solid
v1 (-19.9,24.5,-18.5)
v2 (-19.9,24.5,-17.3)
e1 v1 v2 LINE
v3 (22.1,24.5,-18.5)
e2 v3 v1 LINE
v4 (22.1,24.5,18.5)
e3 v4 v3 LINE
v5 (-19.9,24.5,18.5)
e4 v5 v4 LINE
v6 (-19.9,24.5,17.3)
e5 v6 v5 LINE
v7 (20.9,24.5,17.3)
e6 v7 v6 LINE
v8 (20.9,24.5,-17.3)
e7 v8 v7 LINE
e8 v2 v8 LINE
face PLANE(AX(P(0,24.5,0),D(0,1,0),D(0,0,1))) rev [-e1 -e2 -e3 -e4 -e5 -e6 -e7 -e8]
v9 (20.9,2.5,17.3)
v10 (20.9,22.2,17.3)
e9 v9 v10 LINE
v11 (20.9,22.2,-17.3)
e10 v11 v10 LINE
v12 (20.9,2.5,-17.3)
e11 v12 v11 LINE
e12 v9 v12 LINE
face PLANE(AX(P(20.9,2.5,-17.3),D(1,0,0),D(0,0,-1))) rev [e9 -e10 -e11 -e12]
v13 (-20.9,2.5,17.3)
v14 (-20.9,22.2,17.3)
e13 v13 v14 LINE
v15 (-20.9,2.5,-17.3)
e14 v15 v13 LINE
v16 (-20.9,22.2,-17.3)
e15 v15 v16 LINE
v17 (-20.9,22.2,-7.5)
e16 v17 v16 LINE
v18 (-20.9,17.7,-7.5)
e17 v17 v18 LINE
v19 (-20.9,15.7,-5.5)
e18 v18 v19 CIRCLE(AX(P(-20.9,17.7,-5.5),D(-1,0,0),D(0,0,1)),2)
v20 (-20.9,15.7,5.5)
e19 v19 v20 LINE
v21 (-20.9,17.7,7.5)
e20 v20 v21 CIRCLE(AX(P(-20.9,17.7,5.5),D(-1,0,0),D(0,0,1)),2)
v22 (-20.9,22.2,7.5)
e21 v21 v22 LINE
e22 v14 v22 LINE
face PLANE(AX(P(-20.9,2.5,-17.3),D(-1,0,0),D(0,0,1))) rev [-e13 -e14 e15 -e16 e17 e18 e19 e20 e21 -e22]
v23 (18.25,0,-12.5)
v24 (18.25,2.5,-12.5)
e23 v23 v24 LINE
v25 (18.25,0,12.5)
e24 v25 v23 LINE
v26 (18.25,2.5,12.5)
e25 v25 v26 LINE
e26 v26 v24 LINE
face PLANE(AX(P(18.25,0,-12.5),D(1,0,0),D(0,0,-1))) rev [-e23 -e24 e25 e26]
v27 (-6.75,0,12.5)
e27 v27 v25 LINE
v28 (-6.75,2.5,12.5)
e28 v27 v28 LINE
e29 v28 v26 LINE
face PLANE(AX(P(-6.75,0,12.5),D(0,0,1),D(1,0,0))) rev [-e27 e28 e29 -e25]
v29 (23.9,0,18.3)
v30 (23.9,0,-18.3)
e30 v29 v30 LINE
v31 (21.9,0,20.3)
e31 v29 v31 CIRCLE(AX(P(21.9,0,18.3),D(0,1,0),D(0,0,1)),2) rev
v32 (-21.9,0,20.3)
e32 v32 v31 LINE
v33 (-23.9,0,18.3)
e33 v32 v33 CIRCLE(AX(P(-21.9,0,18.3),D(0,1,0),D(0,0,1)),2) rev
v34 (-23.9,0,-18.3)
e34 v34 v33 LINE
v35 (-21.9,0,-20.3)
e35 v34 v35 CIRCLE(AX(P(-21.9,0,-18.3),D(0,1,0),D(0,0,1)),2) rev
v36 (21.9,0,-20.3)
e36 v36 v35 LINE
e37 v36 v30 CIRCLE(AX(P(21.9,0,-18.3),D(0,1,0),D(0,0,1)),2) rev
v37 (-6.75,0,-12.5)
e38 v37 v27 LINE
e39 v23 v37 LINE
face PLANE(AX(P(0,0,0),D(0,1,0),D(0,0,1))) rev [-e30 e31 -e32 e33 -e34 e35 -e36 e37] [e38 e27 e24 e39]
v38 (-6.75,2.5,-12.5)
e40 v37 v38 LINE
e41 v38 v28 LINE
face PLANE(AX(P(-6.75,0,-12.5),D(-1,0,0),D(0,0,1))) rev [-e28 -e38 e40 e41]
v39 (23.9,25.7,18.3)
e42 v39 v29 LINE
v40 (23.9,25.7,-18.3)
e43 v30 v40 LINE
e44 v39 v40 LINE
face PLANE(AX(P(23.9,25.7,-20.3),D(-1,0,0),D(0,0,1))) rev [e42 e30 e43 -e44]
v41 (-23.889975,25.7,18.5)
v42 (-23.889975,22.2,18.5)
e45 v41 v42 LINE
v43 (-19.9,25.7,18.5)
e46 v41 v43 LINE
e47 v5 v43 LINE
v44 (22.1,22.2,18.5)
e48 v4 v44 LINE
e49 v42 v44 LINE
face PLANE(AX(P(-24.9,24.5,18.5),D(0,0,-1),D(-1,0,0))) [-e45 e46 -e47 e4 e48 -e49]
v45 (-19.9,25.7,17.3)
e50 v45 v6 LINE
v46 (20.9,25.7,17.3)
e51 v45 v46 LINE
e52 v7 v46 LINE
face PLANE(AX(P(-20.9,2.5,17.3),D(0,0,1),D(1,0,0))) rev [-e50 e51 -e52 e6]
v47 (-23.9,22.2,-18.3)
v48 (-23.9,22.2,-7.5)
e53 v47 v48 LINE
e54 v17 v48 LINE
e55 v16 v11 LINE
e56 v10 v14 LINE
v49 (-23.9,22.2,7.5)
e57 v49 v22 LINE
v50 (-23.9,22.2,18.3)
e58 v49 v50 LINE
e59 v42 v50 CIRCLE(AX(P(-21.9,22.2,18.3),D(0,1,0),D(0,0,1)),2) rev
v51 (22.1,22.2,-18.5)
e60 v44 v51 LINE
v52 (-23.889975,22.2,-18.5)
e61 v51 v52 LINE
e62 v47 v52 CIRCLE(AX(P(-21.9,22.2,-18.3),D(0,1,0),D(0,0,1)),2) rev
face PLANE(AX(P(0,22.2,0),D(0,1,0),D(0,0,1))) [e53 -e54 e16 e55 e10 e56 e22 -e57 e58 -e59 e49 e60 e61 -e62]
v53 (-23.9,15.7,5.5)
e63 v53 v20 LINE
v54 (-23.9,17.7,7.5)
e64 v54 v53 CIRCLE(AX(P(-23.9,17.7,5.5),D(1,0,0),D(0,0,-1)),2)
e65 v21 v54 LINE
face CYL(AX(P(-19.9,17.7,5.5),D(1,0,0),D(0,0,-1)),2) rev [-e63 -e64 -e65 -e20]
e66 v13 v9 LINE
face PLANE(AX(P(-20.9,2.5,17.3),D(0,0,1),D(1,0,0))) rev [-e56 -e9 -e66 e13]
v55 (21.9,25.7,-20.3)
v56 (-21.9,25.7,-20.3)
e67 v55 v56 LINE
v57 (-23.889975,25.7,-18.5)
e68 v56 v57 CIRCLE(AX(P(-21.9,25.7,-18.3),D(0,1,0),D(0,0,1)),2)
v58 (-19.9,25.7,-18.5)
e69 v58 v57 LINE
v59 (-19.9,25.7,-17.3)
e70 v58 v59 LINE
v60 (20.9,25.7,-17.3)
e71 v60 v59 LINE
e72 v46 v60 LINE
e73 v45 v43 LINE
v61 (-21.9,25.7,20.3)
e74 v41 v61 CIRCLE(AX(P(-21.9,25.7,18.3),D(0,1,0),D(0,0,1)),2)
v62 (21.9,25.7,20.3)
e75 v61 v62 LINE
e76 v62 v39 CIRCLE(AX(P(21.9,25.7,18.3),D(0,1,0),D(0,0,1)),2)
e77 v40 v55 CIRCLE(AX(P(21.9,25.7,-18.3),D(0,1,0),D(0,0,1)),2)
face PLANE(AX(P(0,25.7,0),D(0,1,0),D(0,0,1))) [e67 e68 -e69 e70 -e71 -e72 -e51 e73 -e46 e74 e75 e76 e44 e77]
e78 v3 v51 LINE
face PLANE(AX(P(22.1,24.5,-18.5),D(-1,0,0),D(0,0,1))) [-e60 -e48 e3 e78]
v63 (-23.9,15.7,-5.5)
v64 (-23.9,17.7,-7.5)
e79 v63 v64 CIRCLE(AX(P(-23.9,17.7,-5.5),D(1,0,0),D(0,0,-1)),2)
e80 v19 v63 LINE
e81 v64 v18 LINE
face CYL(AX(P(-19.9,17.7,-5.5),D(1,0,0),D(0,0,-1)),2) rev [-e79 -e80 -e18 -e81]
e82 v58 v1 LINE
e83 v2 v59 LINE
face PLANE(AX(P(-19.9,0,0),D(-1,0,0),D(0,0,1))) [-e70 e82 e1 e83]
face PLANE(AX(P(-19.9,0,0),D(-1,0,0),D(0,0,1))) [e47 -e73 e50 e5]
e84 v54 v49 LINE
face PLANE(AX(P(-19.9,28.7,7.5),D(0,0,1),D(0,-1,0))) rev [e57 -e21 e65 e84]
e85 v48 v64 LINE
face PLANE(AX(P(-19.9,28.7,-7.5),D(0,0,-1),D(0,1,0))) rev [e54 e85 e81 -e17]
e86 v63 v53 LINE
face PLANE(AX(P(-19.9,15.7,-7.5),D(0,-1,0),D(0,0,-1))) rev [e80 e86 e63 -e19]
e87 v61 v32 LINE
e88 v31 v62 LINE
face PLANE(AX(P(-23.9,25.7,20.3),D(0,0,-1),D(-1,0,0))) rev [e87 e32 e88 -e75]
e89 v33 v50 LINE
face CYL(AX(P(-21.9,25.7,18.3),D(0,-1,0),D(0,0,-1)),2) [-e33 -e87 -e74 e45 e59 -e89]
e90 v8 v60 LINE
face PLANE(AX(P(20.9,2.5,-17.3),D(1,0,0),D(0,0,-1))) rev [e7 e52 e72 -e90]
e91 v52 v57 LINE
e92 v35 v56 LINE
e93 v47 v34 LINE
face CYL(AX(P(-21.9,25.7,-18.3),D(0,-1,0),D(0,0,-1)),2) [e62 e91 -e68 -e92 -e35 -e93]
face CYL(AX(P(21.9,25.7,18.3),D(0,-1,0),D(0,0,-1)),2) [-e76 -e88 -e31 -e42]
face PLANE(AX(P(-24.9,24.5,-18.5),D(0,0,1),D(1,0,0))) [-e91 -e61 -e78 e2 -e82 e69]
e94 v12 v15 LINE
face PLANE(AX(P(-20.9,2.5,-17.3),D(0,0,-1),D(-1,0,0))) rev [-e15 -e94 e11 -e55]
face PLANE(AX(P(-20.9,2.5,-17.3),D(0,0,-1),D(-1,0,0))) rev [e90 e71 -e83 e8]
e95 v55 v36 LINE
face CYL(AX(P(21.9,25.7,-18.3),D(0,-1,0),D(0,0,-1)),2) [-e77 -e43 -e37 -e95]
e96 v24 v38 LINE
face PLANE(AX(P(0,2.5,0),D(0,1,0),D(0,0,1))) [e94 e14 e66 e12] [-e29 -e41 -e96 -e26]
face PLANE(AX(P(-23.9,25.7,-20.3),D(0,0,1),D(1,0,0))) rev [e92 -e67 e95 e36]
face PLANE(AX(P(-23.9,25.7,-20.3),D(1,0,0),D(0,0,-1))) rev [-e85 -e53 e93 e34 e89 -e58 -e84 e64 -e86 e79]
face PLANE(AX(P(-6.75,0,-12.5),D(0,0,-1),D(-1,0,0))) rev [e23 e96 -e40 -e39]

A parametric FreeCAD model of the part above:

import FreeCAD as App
import Part
import Sketcher

V = App.Vector


def edges_at(feature, points):
    """Names of the edges that pass closest to the given points."""
    edges = feature.Shape.Edges
    near = lambda p: min(range(len(edges)), key=lambda i: edges[i].distToShape(Part.Vertex(*p))[0])
    return sorted({f"Edge{near(p) + 1}" for p in points})

doc = App.newDocument("Part")
body = doc.addObject("PartDesign::Body", "Body")

sketch1 = body.newObject("Sketcher::SketchObject", "Sketch")
sketch1.AttachmentSupport = (doc.getObject("XZ_Plane"), [""])
sketch1.MapMode = "FlatFace"
sketch1.addGeometry([
    Part.LineSegment(V(-24, -20, 0), V(-24, 20, 0)),
    Part.LineSegment(V(-24, 20, 0), V(24, 20, 0)),
    Part.LineSegment(V(24, 20, 0), V(24, -20, 0)),
    Part.LineSegment(V(24, -20, 0), V(-24, -20, 0)),
], False)
sketch1.addConstraint([
    Sketcher.Constraint("Coincident", 0, 2, 1, 1),
    Sketcher.Constraint("Coincident", 1, 2, 2, 1),
    Sketcher.Constraint("Coincident", 2, 2, 3, 1),
    Sketcher.Constraint("Coincident", 3, 2, 0, 1),
    Sketcher.Constraint("Vertical", 0),
    Sketcher.Constraint("Horizontal", 1),
    Sketcher.Constraint("Vertical", 2),
    Sketcher.Constraint("Horizontal", 3),
    Sketcher.Constraint("Symmetric", 0, 2, 2, 2, -1, 1),
    Sketcher.Constraint("DistanceX", 1, 1, 1, 2, 47.8),
    Sketcher.Constraint("DistanceY", 0, 1, 0, 2, 40.6),
])
pad1 = body.newObject("PartDesign::Pad", "Pad")
pad1.Profile = sketch1
pad1.Length = 25.7
pad1.Reversed = True

sketch2 = body.newObject("Sketcher::SketchObject", "Sketch001")
sketch2.AttachmentSupport = (doc.getObject("XZ_Plane"), [""])
sketch2.MapMode = "FlatFace"
sketch2.AttachmentOffset = App.Placement(V(0, 0, -25.7), App.Rotation())
sketch2.addGeometry([
    Part.LineSegment(V(-21, -17, 0), V(-21, 17, 0)),
    Part.LineSegment(V(-21, 17, 0), V(21, 17, 0)),
    Part.LineSegment(V(21, 17, 0), V(21, -17, 0)),
    Part.LineSegment(V(21, -17, 0), V(-21, -17, 0)),
], False)
sketch2.addConstraint([
    Sketcher.Constraint("Coincident", 0, 2, 1, 1),
    Sketcher.Constraint("Coincident", 1, 2, 2, 1),
    Sketcher.Constraint("Coincident", 2, 2, 3, 1),
    Sketcher.Constraint("Coincident", 3, 2, 0, 1),
    Sketcher.Constraint("Vertical", 0),
    Sketcher.Constraint("Horizontal", 1),
    Sketcher.Constraint("Vertical", 2),
    Sketcher.Constraint("Horizontal", 3),
    Sketcher.Constraint("Symmetric", 0, 2, 2, 2, -1, 1),
    Sketcher.Constraint("DistanceX", 1, 1, 1, 2, 41.8),
    Sketcher.Constraint("DistanceY", 0, 1, 0, 2, 34.6),
])
pocket1 = body.newObject("PartDesign::Pocket", "Pocket")
pocket1.Profile = sketch2
pocket1.Length = 23.2
pocket1.Reversed = True
doc.recompute()

fillet = body.newObject("PartDesign::Fillet", "Fillet")
fillet.Base = (pocket1, edges_at(pocket1, [
    (23.9, 12.85, 20.3),
    (-23.9, 12.85, 20.3),
    (-23.9, 12.85, -20.3),
    (23.9, 12.85, -20.3),
]))
fillet.Radius = 2

sketch3 = body.newObject("Sketcher::SketchObject", "Sketch002")
sketch3.AttachmentSupport = (doc.getObject("XZ_Plane"), [""])
sketch3.MapMode = "FlatFace"
sketch3.AttachmentOffset = App.Placement(V(0, 0, -2.5), App.Rotation())
sketch3.addGeometry([
    Part.LineSegment(V(-7, -12, 0), V(-7, 12, 0)),
    Part.LineSegment(V(-7, 12, 0), V(18, 12, 0)),
    Part.LineSegment(V(18, 12, 0), V(18, -12, 0)),
    Part.LineSegment(V(18, -12, 0), V(-7, -12, 0)),
], False)
sketch3.addConstraint([
    Sketcher.Constraint("Coincident", 0, 2, 1, 1),
    Sketcher.Constraint("Coincident", 1, 2, 2, 1),
    Sketcher.Constraint("Coincident", 2, 2, 3, 1),
    Sketcher.Constraint("Coincident", 3, 2, 0, 1),
    Sketcher.Constraint("Vertical", 0),
    Sketcher.Constraint("Horizontal", 1),
    Sketcher.Constraint("Vertical", 2),
    Sketcher.Constraint("Horizontal", 3),
    Sketcher.Constraint("Equal", 3, 0),
    Sketcher.Constraint("DistanceX", 1, 1, 1, 2, 25.0),
    Sketcher.Constraint("DistanceY", -1, 1, 0, 2, 12.5),
    Sketcher.Constraint("DistanceX", 0, 2, -1, 1, 6.75),
])
pocket2 = body.newObject("PartDesign::Pocket", "Pocket001")
pocket2.Profile = sketch3
pocket2.Type = "ThroughAll"
pocket2.Reversed = True

sketch4 = body.newObject("Sketcher::SketchObject", "Sketch003")
sketch4.AttachmentSupport = (doc.getObject("XZ_Plane"), [""])
sketch4.MapMode = "FlatFace"
sketch4.AttachmentOffset = App.Placement(V(0, 0, -22.2), App.Rotation())
sketch4.addGeometry([
    Part.LineSegment(V(-25, -18, 0), V(-25, 18, 0)),
    Part.LineSegment(V(-25, 18, 0), V(22, 18, 0)),
    Part.LineSegment(V(22, 18, 0), V(22, -18, 0)),
    Part.LineSegment(V(22, -18, 0), V(-25, -18, 0)),
], False)
sketch4.addConstraint([
    Sketcher.Constraint("Coincident", 0, 2, 1, 1),
    Sketcher.Constraint("Coincident", 1, 2, 2, 1),
    Sketcher.Constraint("Coincident", 2, 2, 3, 1),
    Sketcher.Constraint("Coincident", 3, 2, 0, 1),
    Sketcher.Constraint("Vertical", 0),
    Sketcher.Constraint("Horizontal", 1),
    Sketcher.Constraint("Vertical", 2),
    Sketcher.Constraint("Horizontal", 3),
    Sketcher.Constraint("DistanceX", 1, 1, 1, 2, 47.0),
    Sketcher.Constraint("DistanceY", 0, 1, 0, 2, 37.0),
    Sketcher.Constraint("DistanceX", 0, 2, -1, 1, 24.9),
    Sketcher.Constraint("DistanceY", -1, 1, 0, 2, 18.5),
])
pocket3 = body.newObject("PartDesign::Pocket", "Pocket002")
pocket3.Profile = sketch4
pocket3.Length = 2.3

sketch5 = body.newObject("Sketcher::SketchObject", "Sketch004")
sketch5.AttachmentSupport = (doc.getObject("YZ_Plane"), [""])
sketch5.MapMode = "FlatFace"
sketch5.AttachmentOffset = App.Placement(V(0, 0, -23.9), App.Rotation())
sketch5.addGeometry([
    Part.LineSegment(V(27.4, -18.5, 0), V(23.9, -18.5, 0)),
    Part.LineSegment(V(23.9, -18.5, 0), V(23.9, 18.5, 0)),
    Part.LineSegment(V(23.9, 18.5, 0), V(27.4, 18.5, 0)),
    Part.LineSegment(V(27.4, 18.5, 0), V(27.4, -18.5, 0)),
], False)
sketch5.addConstraint([
    Sketcher.Constraint("Coincident", 0, 2, 1, 1),
    Sketcher.Constraint("Coincident", 1, 2, 2, 1),
    Sketcher.Constraint("Coincident", 2, 2, 3, 1),
    Sketcher.Constraint("Coincident", 3, 2, 0, 1),
    Sketcher.Constraint("Horizontal", 0),
    Sketcher.Constraint("Vertical", 1),
    Sketcher.Constraint("Horizontal", 2),
    Sketcher.Constraint("Vertical", 3),
    Sketcher.Constraint("DistanceY", 1, 1, 1, 2, 37.0),
    Sketcher.Constraint("DistanceX", 0, 2, 0, 1, 3.5),
    Sketcher.Constraint("DistanceY", 0, 2, -1, 1, 18.5),
    Sketcher.Constraint("DistanceX", -1, 1, 0, 2, 23.95),
])
pocket4 = body.newObject("PartDesign::Pocket", "Pocket003")
pocket4.Profile = sketch5
pocket4.Length = 4
pocket4.Reversed = True

sketch6 = body.newObject("Sketcher::SketchObject", "Sketch005")
sketch6.AttachmentSupport = (doc.getObject("YZ_Plane"), [""])
sketch6.MapMode = "FlatFace"
sketch6.AttachmentOffset = App.Placement(V(0, 0, -23.9), App.Rotation())
sketch6.addGeometry([
    Part.LineSegment(V(29, -8, 0), V(16, -8, 0)),
    Part.LineSegment(V(16, -8, 0), V(16, 8, 0)),
    Part.LineSegment(V(16, 8, 0), V(29, 8, 0)),
    Part.LineSegment(V(29, 8, 0), V(29, -8, 0)),
], False)
sketch6.addConstraint([
    Sketcher.Constraint("Coincident", 0, 2, 1, 1),
    Sketcher.Constraint("Coincident", 1, 2, 2, 1),
    Sketcher.Constraint("Coincident", 2, 2, 3, 1),
    Sketcher.Constraint("Coincident", 3, 2, 0, 1),
    Sketcher.Constraint("Horizontal", 0),
    Sketcher.Constraint("Vertical", 1),
    Sketcher.Constraint("Horizontal", 2),
    Sketcher.Constraint("Vertical", 3),
    Sketcher.Constraint("DistanceX", 0, 2, 0, 1, 13.0),
    Sketcher.Constraint("DistanceY", 1, 1, 1, 2, 15.0),
    Sketcher.Constraint("DistanceX", -1, 1, 0, 2, 15.7),
    Sketcher.Constraint("DistanceY", 0, 2, -1, 1, 7.5),
])
pocket5 = body.newObject("PartDesign::Pocket", "Pocket004")
pocket5.Profile = sketch6
pocket5.Length = 4
pocket5.Reversed = True
doc.recompute()

fillet2 = body.newObject("PartDesign::Fillet", "Fillet001")
fillet2.Base = (pocket5, edges_at(pocket5, [(-22.4, 15.7, 7.5), (-22.4, 15.7, -7.5)]))
fillet2.Radius = 2

doc.recompute()
